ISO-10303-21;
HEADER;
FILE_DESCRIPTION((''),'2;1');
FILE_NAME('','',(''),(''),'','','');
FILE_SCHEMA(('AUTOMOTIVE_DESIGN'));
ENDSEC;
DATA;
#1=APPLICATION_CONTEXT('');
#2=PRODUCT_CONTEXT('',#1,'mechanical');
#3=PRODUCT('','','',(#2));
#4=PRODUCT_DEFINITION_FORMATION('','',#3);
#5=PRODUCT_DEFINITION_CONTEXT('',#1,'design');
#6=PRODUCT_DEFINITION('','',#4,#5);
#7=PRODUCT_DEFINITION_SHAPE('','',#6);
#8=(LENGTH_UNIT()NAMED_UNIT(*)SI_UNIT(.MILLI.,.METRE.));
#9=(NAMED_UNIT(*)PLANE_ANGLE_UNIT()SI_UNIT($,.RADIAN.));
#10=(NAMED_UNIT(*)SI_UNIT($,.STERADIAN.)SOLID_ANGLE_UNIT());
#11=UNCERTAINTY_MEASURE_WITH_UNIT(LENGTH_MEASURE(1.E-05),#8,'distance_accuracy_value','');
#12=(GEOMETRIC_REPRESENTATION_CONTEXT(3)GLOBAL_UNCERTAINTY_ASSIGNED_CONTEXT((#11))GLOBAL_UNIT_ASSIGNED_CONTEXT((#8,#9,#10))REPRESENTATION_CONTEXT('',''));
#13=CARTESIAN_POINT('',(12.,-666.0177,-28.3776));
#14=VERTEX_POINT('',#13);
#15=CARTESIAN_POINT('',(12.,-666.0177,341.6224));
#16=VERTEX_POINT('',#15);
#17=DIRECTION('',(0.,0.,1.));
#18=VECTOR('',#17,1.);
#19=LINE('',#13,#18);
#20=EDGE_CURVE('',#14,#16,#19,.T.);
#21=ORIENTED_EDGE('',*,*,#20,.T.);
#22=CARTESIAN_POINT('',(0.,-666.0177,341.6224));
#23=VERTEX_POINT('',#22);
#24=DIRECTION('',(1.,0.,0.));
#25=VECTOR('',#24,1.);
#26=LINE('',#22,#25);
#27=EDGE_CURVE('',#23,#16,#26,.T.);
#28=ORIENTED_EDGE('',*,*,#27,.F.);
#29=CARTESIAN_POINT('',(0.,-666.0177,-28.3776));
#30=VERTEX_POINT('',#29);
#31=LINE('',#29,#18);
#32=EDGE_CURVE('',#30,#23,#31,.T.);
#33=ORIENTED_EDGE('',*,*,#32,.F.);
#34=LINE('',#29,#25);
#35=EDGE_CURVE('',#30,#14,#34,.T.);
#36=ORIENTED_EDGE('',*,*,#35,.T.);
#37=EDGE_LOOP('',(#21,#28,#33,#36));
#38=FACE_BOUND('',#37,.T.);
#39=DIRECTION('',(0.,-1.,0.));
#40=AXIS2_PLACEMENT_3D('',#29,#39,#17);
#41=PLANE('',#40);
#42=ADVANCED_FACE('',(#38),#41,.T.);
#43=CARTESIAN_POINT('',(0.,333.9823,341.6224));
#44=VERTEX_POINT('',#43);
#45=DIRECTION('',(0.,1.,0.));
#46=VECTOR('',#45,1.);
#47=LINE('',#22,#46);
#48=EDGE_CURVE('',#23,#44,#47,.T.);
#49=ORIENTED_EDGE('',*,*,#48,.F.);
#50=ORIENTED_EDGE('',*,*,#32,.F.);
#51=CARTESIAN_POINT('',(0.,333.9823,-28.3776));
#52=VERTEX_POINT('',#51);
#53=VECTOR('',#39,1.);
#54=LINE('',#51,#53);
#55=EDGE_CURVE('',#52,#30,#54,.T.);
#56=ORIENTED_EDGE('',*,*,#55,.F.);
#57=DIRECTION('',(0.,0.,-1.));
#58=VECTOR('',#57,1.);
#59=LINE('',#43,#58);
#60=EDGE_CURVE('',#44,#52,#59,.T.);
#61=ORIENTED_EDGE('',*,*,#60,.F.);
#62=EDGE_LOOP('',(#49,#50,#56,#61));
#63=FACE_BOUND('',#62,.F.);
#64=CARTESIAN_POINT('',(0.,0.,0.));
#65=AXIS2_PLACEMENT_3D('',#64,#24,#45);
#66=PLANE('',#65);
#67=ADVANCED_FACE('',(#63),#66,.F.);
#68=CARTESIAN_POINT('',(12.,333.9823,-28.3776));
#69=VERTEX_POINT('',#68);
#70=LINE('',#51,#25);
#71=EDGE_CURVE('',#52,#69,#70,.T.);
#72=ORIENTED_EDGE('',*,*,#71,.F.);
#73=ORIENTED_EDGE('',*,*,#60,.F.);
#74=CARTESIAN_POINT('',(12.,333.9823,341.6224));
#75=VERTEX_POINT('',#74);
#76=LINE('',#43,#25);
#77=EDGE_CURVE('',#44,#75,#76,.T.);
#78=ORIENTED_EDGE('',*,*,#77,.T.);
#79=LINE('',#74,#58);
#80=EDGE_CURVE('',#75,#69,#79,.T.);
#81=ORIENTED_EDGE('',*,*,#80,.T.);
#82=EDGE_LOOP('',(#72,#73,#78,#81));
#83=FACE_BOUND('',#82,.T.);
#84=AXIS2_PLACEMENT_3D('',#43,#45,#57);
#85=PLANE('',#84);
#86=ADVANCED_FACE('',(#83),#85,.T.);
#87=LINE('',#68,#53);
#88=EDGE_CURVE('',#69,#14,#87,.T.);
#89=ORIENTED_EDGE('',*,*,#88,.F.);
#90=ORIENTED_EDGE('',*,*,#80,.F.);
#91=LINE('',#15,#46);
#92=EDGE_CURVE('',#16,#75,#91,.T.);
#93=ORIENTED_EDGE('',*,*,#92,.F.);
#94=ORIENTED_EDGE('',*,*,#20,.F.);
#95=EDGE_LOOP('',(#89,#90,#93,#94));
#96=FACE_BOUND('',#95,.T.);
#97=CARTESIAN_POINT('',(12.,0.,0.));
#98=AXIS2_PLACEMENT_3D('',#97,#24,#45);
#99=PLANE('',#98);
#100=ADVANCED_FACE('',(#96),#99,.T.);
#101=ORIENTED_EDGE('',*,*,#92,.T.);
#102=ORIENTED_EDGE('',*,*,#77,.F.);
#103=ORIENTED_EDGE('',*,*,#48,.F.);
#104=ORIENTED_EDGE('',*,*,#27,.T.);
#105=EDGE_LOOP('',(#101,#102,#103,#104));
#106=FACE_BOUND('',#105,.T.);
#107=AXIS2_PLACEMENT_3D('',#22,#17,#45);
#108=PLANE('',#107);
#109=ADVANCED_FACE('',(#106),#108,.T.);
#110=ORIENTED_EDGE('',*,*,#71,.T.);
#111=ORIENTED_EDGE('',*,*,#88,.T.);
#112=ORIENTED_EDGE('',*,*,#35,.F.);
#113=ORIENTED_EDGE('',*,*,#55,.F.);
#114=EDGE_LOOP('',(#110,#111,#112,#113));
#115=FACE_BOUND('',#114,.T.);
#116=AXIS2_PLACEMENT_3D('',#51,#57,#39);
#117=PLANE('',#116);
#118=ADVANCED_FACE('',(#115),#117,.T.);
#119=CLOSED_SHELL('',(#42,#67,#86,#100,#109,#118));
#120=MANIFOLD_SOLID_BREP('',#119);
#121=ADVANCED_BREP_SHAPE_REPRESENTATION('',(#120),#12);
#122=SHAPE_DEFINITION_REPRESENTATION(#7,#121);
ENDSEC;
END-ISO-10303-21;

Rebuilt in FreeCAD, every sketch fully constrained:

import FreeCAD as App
import Part
import Sketcher
from FreeCAD import Vector
Q = App.Units.Quantity

doc = App.newDocument("Part")
body = doc.addObject("PartDesign::Body", "Body")

# Sketch on YZ plane
sketch1 = body.newObject("Sketcher::SketchObject", "Sketch")
sketch1.AttachmentSupport = (doc.getObject("YZ_Plane"), [""])
sketch1.MapMode = "FlatFace"
sketch1.addGeometry([
    Part.LineSegment(Vector(334, 342, 0), Vector(-666, 342, 0)),
    Part.LineSegment(Vector(-666, 342, 0), Vector(-666, -28, 0)),
    Part.LineSegment(Vector(-666, -28, 0), Vector(334, -28, 0)),
    Part.LineSegment(Vector(334, -28, 0), Vector(334, 342, 0)),
], False)
sketch1.addConstraint([
    Sketcher.Constraint("Coincident", 0, 2, 1, 1),
    Sketcher.Constraint("Coincident", 1, 2, 2, 1),
    Sketcher.Constraint("Coincident", 2, 2, 3, 1),
    Sketcher.Constraint("Coincident", 3, 2, 0, 1),
    Sketcher.Constraint("Horizontal", 0),
    Sketcher.Constraint("Vertical", 1),
    Sketcher.Constraint("Horizontal", 2),
    Sketcher.Constraint("Vertical", 3),
    Sketcher.Constraint("DistanceX", 0, 2, 0, 1, Q("1000 mm")),
    Sketcher.Constraint("DistanceY", 1, 2, 1, 1, Q("370 mm")),
    Sketcher.Constraint("DistanceX", 0, 2, -1, 1, Q("666.0177 mm")),
    Sketcher.Constraint("DistanceY", -1, 1, 0, 2, Q("341.6224 mm")),
])
pad1 = body.newObject("PartDesign::Pad", "Pad")
pad1.Profile = sketch1
pad1.Length = 12

doc.recompute()
